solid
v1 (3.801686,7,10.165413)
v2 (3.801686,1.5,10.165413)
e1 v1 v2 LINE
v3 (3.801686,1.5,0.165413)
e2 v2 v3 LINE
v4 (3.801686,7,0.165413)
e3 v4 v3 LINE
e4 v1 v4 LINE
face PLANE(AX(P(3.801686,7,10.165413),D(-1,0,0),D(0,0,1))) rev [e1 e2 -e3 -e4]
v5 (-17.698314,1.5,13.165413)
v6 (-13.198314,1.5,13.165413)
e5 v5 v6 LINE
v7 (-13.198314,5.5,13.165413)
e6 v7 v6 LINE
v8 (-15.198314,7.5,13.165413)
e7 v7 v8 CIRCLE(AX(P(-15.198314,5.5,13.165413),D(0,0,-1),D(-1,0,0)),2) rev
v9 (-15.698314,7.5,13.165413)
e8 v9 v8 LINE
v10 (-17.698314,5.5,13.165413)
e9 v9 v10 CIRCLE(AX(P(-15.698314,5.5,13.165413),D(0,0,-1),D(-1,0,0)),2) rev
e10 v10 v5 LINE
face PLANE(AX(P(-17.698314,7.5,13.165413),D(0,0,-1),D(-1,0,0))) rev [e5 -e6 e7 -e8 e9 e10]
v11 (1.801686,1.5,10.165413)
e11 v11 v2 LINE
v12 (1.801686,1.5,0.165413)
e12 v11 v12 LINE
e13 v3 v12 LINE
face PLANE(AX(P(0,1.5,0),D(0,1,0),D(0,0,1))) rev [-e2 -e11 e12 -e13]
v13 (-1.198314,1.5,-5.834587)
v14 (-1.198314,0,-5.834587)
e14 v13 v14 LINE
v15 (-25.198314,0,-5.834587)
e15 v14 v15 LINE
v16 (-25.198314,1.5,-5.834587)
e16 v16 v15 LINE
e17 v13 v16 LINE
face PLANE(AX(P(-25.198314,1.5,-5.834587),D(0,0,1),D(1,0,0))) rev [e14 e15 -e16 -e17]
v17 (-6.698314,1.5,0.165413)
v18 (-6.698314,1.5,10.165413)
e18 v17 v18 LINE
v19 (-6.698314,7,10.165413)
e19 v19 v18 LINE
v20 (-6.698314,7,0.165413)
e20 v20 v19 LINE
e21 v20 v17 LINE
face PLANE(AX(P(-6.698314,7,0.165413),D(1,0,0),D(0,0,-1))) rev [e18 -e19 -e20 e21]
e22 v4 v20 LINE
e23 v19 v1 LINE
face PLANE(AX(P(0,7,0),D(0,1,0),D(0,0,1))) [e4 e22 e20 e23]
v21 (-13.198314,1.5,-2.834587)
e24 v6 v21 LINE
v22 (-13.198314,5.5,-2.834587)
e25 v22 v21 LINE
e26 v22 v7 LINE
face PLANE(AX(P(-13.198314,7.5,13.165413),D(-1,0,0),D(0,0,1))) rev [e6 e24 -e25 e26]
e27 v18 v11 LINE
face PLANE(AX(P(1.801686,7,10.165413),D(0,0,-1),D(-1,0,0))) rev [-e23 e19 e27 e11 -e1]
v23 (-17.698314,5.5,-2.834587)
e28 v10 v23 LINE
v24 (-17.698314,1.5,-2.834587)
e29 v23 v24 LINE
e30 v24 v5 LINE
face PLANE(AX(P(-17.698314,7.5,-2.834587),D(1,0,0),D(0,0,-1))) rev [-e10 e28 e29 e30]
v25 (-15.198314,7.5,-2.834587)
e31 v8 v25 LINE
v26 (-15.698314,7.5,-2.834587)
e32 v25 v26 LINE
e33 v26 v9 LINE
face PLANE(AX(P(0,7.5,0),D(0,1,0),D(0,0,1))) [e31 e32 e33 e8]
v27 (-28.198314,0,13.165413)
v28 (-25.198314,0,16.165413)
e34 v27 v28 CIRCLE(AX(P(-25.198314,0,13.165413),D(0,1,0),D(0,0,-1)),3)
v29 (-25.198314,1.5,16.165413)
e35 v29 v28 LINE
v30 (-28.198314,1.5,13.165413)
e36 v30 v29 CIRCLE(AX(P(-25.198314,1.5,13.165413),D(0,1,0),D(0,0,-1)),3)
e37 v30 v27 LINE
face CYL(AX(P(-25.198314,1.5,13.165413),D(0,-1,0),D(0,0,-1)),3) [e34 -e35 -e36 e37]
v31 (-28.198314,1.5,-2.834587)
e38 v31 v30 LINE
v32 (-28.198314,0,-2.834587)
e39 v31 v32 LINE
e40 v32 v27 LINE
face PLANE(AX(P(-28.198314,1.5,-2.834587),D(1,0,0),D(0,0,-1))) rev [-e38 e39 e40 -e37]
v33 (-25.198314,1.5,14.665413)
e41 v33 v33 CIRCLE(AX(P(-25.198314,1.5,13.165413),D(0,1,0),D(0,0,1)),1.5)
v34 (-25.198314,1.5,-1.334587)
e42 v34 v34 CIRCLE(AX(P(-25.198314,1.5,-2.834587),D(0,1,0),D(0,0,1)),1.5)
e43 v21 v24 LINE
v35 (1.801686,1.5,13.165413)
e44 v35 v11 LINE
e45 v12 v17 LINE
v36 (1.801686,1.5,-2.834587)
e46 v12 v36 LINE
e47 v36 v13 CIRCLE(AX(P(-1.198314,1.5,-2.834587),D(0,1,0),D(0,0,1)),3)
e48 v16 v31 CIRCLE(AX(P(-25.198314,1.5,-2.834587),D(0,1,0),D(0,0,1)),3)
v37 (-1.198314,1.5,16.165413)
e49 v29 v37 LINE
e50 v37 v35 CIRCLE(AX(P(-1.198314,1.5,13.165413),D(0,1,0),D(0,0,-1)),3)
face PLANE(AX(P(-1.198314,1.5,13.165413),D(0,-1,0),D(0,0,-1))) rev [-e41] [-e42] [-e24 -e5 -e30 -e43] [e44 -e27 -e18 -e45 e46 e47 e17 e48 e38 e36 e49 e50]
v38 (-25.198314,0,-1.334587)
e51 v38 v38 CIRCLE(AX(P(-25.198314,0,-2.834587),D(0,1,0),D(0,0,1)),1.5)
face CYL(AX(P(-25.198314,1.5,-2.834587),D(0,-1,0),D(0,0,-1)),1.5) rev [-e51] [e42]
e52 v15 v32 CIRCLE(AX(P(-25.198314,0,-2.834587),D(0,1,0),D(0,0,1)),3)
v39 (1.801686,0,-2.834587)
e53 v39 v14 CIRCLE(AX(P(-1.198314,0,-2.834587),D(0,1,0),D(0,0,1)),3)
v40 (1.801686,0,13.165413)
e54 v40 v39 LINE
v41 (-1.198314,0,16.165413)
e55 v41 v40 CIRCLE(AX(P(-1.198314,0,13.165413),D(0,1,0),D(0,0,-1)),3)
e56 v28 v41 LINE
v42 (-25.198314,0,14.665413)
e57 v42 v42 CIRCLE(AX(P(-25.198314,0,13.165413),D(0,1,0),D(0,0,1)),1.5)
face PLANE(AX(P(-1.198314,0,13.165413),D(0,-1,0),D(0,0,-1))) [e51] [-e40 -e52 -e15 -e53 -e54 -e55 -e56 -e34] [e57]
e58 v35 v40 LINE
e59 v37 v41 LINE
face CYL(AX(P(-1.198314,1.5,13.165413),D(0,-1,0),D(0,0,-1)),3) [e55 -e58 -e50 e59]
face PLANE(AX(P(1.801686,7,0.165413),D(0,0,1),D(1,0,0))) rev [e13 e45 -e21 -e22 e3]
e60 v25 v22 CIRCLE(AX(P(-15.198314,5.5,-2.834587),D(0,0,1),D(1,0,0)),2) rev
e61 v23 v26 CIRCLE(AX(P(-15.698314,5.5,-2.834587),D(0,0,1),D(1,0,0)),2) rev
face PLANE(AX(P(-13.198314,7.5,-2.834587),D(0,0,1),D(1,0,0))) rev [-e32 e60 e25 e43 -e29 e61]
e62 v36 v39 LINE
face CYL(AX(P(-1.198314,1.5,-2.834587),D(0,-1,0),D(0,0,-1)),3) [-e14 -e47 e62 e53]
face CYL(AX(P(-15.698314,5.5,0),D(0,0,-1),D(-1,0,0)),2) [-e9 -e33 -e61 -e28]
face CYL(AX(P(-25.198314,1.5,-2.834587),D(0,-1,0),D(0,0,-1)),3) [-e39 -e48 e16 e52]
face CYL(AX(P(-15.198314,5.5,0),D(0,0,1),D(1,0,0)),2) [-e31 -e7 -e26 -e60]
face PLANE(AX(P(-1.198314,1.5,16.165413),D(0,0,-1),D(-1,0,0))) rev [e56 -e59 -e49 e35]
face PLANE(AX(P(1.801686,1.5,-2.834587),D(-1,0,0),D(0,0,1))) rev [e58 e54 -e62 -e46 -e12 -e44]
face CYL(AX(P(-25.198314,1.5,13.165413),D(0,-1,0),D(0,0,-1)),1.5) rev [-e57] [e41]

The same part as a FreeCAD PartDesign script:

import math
import FreeCAD as App
import Part
import Sketcher
Q = App.Units.Quantity


def edges_at(feature, points):
    """Names of the edges that pass closest to the given points."""
    edges = feature.Shape.Edges
    near = lambda p: min(range(len(edges)), key=lambda i: edges[i].distToShape(Part.Vertex(*p))[0])
    return sorted({f"Edge{near(p) + 1}" for p in points})

doc = App.newDocument("Part")
params = doc.addObject("Spreadsheet::Sheet", "Params")
for row, (alias, value) in enumerate([
    ("sketch1_diameter", "3 mm"),
    ("sketch1_radius", "3 mm"),
    ("sketch1_width", "24 mm"),
    ("sketch1_height", "16 mm"),
    ("pad1_length", "1.5 mm"),
    ("sketch2_height", "10 mm"),
    ("sketch2_width", "10.5 mm"),
    ("pad2_length", "5.5 mm"),
    ("sketch3_height", "16 mm"),
    ("sketch3_width", "4.5 mm"),
    ("pad3_length", "6 mm"),
    ("fillet_radius", "2 mm"),
], start=1):
    params.set(f"A{row}", alias)
    params.set(f"B{row}", "=" + value)
    params.setAlias(f"B{row}", alias)

body = doc.addObject("PartDesign::Body", "Body")

sketch1 = body.newObject("Sketcher::SketchObject", "Sketch")
sketch1.AttachmentSupport = (doc.getObject("XZ_Plane"), [""])
sketch1.MapMode = "FlatFace"
sketch1.addGeometry([
    Part.LineSegment(App.Vector(-28.2, -2.8, 0), App.Vector(-28.2, 13.2, 0)),
    Part.ArcOfCircle(Part.Circle(App.Vector(-25.2, 13.2, 0), App.Vector(0, 0, 1), 3), math.radians(90), math.radians(180)),
    Part.LineSegment(App.Vector(-25.2, 16.2, 0), App.Vector(-1.2, 16.2, 0)),
    Part.ArcOfCircle(Part.Circle(App.Vector(-1.2, 13.2, 0), App.Vector(0, 0, 1), 3), math.radians(0), math.radians(90)),
    Part.LineSegment(App.Vector(1.8, 13.2, 0), App.Vector(1.8, -2.8, 0)),
    Part.ArcOfCircle(Part.Circle(App.Vector(-1.2, -2.8, 0), App.Vector(0, 0, 1), 3), math.radians(-90), math.radians(0)),
    Part.LineSegment(App.Vector(-1.2, -5.8, 0), App.Vector(-25.2, -5.8, 0)),
    Part.ArcOfCircle(Part.Circle(App.Vector(-25.2, -2.8, 0), App.Vector(0, 0, 1), 3), math.radians(180), math.radians(270)),
    Part.Circle(App.Vector(-25.2, 13.2, 0), App.Vector(0, 0, 1), 1.5),
    Part.Circle(App.Vector(-25.2, -2.8, 0), App.Vector(0, 0, 1), 1.5),
], False)
sketch1.addConstraint([
    Sketcher.Constraint("Tangent", 0, 2, 1, 2),
    Sketcher.Constraint("Tangent", 1, 1, 2, 1),
    Sketcher.Constraint("Tangent", 2, 2, 3, 2),
    Sketcher.Constraint("Tangent", 3, 1, 4, 1),
    Sketcher.Constraint("Tangent", 4, 2, 5, 2),
    Sketcher.Constraint("Tangent", 5, 1, 6, 1),
    Sketcher.Constraint("Tangent", 6, 2, 7, 2),
    Sketcher.Constraint("Tangent", 7, 1, 0, 1),
    Sketcher.Constraint("Vertical", 0),
    Sketcher.Constraint("Horizontal", 2),
    Sketcher.Constraint("Vertical", 4),
    Sketcher.Constraint("Horizontal", 6),
    Sketcher.Constraint("Coincident", 8, 3, 1, 3),
    Sketcher.Constraint("Coincident", 9, 3, 7, 3),
    Sketcher.Constraint("Equal", 1, 3),
    Sketcher.Constraint("Equal", 3, 5),
    Sketcher.Constraint("Equal", 5, 7),
    Sketcher.Constraint("Equal", 8, 9),
    Sketcher.Constraint("Diameter", 8, Q("3 mm")),
    Sketcher.Constraint("Radius", 1, Q("3 mm")),
    Sketcher.Constraint("DistanceX", 2, 1, 2, 2, Q("24 mm")),
    Sketcher.Constraint("DistanceY", 0, 1, 0, 2, Q("16 mm")),
    Sketcher.Constraint("DistanceX", 1, 3, -1, 1, Q("25.198314 mm")),
    Sketcher.Constraint("DistanceY", -1, 1, 1, 3, Q("13.165413 mm")),
])
sketch1.setExpression("Constraints[18]", "Params.sketch1_diameter")
sketch1.setExpression("Constraints[19]", "Params.sketch1_radius")
sketch1.setExpression("Constraints[20]", "Params.sketch1_width")
sketch1.setExpression("Constraints[21]", "Params.sketch1_height")
pad1 = body.newObject("PartDesign::Pad", "Pad")
pad1.Profile = sketch1
pad1.setExpression("Length", "Params.pad1_length")
pad1.Reversed = True

sketch2 = body.newObject("Sketcher::SketchObject", "Sketch001")
sketch2.AttachmentSupport = (doc.getObject("XZ_Plane"), [""])
sketch2.MapMode = "FlatFace"
sketch2.AttachmentOffset = App.Placement(App.Vector(0, 0, -1.5), App.Rotation())
sketch2.addGeometry([
    Part.LineSegment(App.Vector(-7, 0, 0), App.Vector(-7, 10, 0)),
    Part.LineSegment(App.Vector(-7, 10, 0), App.Vector(4, 10, 0)),
    Part.LineSegment(App.Vector(4, 10, 0), App.Vector(4, 0, 0)),
    Part.LineSegment(App.Vector(4, 0, 0), App.Vector(-7, 0, 0)),
], False)
sketch2.addConstraint([
    Sketcher.Constraint("Coincident", 0, 2, 1, 1),
    Sketcher.Constraint("Coincident", 1, 2, 2, 1),
    Sketcher.Constraint("Coincident", 2, 2, 3, 1),
    Sketcher.Constraint("Coincident", 3, 2, 0, 1),
    Sketcher.Constraint("Vertical", 0),
    Sketcher.Constraint("Horizontal", 1),
    Sketcher.Constraint("Vertical", 2),
    Sketcher.Constraint("Horizontal", 3),
    Sketcher.Constraint("DistanceY", 0, 1, 0, 2, Q("10 mm")),
    Sketcher.Constraint("DistanceX", 1, 1, 1, 2, Q("10.5 mm")),
    Sketcher.Constraint("DistanceX", 0, 2, -1, 1, Q("6.698314 mm")),
    Sketcher.Constraint("DistanceY", -1, 1, 0, 2, Q("10.165413 mm")),
])
sketch2.setExpression("Constraints[8]", "Params.sketch2_height")
sketch2.setExpression("Constraints[9]", "Params.sketch2_width")
pad2 = body.newObject("PartDesign::Pad", "Pad001")
pad2.Profile = sketch2
pad2.setExpression("Length", "Params.pad2_length")
pad2.Reversed = True

sketch3 = body.newObject("Sketcher::SketchObject", "Sketch002")
sketch3.AttachmentSupport = (doc.getObject("XZ_Plane"), [""])
sketch3.MapMode = "FlatFace"
sketch3.AttachmentOffset = App.Placement(App.Vector(0, 0, -1.5), App.Rotation())
sketch3.addGeometry([
    Part.LineSegment(App.Vector(-17.7, -2.8, 0), App.Vector(-17.7, 13.2, 0)),
    Part.LineSegment(App.Vector(-17.7, 13.2, 0), App.Vector(-13.2, 13.2, 0)),
    Part.LineSegment(App.Vector(-13.2, 13.2, 0), App.Vector(-13.2, -2.8, 0)),
    Part.LineSegment(App.Vector(-13.2, -2.8, 0), App.Vector(-17.7, -2.8, 0)),
], False)
sketch3.addConstraint([
    Sketcher.Constraint("Coincident", 0, 2, 1, 1),
    Sketcher.Constraint("Coincident", 1, 2, 2, 1),
    Sketcher.Constraint("Coincident", 2, 2, 3, 1),
    Sketcher.Constraint("Coincident", 3, 2, 0, 1),
    Sketcher.Constraint("Vertical", 0),
    Sketcher.Constraint("Horizontal", 1),
    Sketcher.Constraint("Vertical", 2),
    Sketcher.Constraint("Horizontal", 3),
    Sketcher.Constraint("DistanceY", 0, 1, 0, 2, Q("16 mm")),
    Sketcher.Constraint("DistanceX", 1, 1, 1, 2, Q("4.5 mm")),
    Sketcher.Constraint("DistanceX", 0, 2, -1, 1, Q("17.698314 mm")),
    Sketcher.Constraint("DistanceY", -1, 1, 0, 2, Q("13.165413 mm")),
])
sketch3.setExpression("Constraints[8]", "Params.sketch3_height")
sketch3.setExpression("Constraints[9]", "Params.sketch3_width")
pad3 = body.newObject("PartDesign::Pad", "Pad002")
pad3.Profile = sketch3
pad3.setExpression("Length", "Params.pad3_length")
pad3.Reversed = True
doc.recompute()

fillet = body.newObject("PartDesign::Fillet", "Fillet")
fillet.Base = (pad3, edges_at(pad3, [(-17.698, 7.5, 5.165), (-13.198, 7.5, 5.165)]))
fillet.setExpression("Radius", "Params.fillet_radius")

doc.recompute()
